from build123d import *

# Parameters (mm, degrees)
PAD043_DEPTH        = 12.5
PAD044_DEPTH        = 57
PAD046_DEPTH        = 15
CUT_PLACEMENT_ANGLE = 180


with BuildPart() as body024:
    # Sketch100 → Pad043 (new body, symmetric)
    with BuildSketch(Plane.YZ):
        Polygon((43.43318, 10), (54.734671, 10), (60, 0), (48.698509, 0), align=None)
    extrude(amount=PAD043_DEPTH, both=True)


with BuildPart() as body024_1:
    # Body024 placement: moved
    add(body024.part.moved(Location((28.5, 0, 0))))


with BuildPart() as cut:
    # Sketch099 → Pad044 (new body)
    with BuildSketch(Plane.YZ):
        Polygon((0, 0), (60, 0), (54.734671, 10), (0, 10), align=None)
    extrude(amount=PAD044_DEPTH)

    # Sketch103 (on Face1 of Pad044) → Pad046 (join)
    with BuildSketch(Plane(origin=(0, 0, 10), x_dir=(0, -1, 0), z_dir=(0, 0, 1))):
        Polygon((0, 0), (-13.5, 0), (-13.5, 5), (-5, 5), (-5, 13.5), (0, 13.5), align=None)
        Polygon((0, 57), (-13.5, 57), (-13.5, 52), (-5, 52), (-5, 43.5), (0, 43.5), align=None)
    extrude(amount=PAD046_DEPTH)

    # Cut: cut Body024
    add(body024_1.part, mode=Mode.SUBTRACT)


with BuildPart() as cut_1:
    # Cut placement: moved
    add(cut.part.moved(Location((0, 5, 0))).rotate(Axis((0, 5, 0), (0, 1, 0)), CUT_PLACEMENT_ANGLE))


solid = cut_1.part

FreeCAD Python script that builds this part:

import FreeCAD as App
import Part
import Sketcher
Q = App.Units.Quantity


def add_polygon(sketch, points):
    """Adds a closed chain of lines whose ends are joined by coincident constraints."""
    first, n = sketch.GeometryCount, len(points)
    for a, b in zip(points, points[1:] + points[:1]):
        sketch.addGeometry(Part.LineSegment(App.Vector(*a, 0), App.Vector(*b, 0)), False)
    for i in range(n):
        sketch.addConstraint(Sketcher.Constraint("Coincident", first + i, 2, first + (i + 1) % n, 1))

doc = App.newDocument("Part")
body = doc.addObject("PartDesign::Body", "Body")

# Sketch on YZ plane
sketch1 = body.newObject("Sketcher::SketchObject", "Sketch")
sketch1.AttachmentSupport = (doc.getObject("YZ_Plane"), [""])
sketch1.MapMode = "FlatFace"
add_polygon(sketch1, [(55, 10), (43, 10), (49, 0), (60, 0)])  # lines 0-3
sketch1.addConstraint([
    Sketcher.Constraint("Horizontal", 0),
    Sketcher.Constraint("Horizontal", 2),
    Sketcher.Constraint("PointOnObject", 1, 2, -1),
    Sketcher.Constraint("Parallel", 1, 3),
    Sketcher.Constraint("DistanceY", -1, 1, 0, 2, Q("10 mm")),
    Sketcher.Constraint("DistanceX", -1, 1, 2, 2, Q("60 mm")),
    Sketcher.Constraint("DistanceX", 0, 2, 0, 1, Q("11.301491 mm")),
    Sketcher.Constraint("Distance", 1, Q("11.301491 mm")),
])
pad1 = body.newObject("PartDesign::Pad", "Pad")
pad1.Profile = sketch1
pad1.Length = 25
pad1.Midplane = True
body2 = doc.addObject("PartDesign::Body", "Body001")
doc.recompute()

body.Placement = App.Placement(App.Vector(28.5, 0, 0), App.Rotation(App.Vector(0, 0, 1), 0))
boolean = body2.newObject("PartDesign::Boolean", "Boolean")
boolean.Type = "Fuse"
boolean.addObjects([body])
body3 = doc.addObject("PartDesign::Body", "Body002")

# Sketch on YZ plane
sketch2 = body3.newObject("Sketcher::SketchObject", "Sketch001")
sketch2.AttachmentSupport = (doc.getObject("YZ_Plane002"), [""])
sketch2.MapMode = "FlatFace"
add_polygon(sketch2, [(0, 0), (60, 0), (55, 10), (0, 10)])  # lines 0-3
sketch2.addConstraint([
    Sketcher.Constraint("Horizontal", 0),
    Sketcher.Constraint("Horizontal", 2),
    Sketcher.Constraint("Vertical", 3),
    Sketcher.Constraint("Coincident", 3, 2, -1, 1),
    Sketcher.Constraint("DistanceX", 0, 1, 0, 2, Q("60 mm")),
    Sketcher.Constraint("DistanceY", 3, 2, 3, 1, Q("10 mm")),
    Sketcher.Constraint("DistanceX", 2, 2, 2, 1, Q("54.734671 mm")),
])
pad2 = body3.newObject("PartDesign::Pad", "Pad001")
pad2.Profile = sketch2
pad2.Length = 57

# Sketch on XY plane
sketch3 = body3.newObject("Sketcher::SketchObject", "Sketch002")
sketch3.AttachmentSupport = (doc.getObject("XY_Plane002"), [""])
sketch3.MapMode = "FlatFace"
sketch3.AttachmentOffset = App.Placement(App.Vector(0, 0, 10), App.Rotation())
add_polygon(sketch3, [(0, 14), (0, 0), (14, 0), (14, 5), (5, 5), (5, 14)])  # lines 0-5
add_polygon(sketch3, [(57, 0), (57, 14), (52, 14), (52, 5), (44, 5), (44, 0)])  # lines 6-11
sketch3.addConstraint([
    Sketcher.Constraint("Vertical", 0),
    Sketcher.Constraint("Horizontal", 1),
    Sketcher.Constraint("Vertical", 2),
    Sketcher.Constraint("Horizontal", 3),
    Sketcher.Constraint("Vertical", 4),
    Sketcher.Constraint("Horizontal", 5),
    Sketcher.Constraint("Vertical", 6),
    Sketcher.Constraint("Horizontal", 7),
    Sketcher.Constraint("Vertical", 8),
    Sketcher.Constraint("Horizontal", 9),
    Sketcher.Constraint("Vertical", 10),
    Sketcher.Constraint("Horizontal", 11),
    Sketcher.Constraint("Coincident", 0, 2, -1, 1),
    Sketcher.Constraint("PointOnObject", 10, 2, -1),
    Sketcher.Constraint("Horizontal", 5, 2, 6, 2),
    Sketcher.Constraint("Horizontal", 3, 2, 8, 2),
    Sketcher.Constraint("Equal", 5, 7),
    Sketcher.Constraint("Equal", 3, 9),
    Sketcher.Constraint("Equal", 11, 0),
    Sketcher.Constraint("Equal", 7, 2),
    Sketcher.Constraint("DistanceX", 5, 2, 5, 1, Q("5 mm")),
    Sketcher.Constraint("DistanceX", 1, 1, 1, 2, Q("13.5 mm")),
    Sketcher.Constraint("DistanceX", -1, 1, 6, 2, Q("57 mm")),
])
pad3 = body3.newObject("PartDesign::Pad", "Pad002")
pad3.Profile = sketch3
pad3.Length = 15
doc.recompute()

boolean2 = body3.newObject("PartDesign::Boolean", "Boolean001")
boolean2.Type = "Cut"
boolean2.addObjects([body2])
body4 = doc.addObject("PartDesign::Body", "Body003")
doc.recompute()

body3.Placement = App.Placement(App.Vector(0, 5, 0), App.Rotation(App.Vector(0, 1, 0), 180))
boolean3 = body4.newObject("PartDesign::Boolean", "Boolean002")
boolean3.Type = "Fuse"
boolean3.addObjects([body3])

doc.recompute()
